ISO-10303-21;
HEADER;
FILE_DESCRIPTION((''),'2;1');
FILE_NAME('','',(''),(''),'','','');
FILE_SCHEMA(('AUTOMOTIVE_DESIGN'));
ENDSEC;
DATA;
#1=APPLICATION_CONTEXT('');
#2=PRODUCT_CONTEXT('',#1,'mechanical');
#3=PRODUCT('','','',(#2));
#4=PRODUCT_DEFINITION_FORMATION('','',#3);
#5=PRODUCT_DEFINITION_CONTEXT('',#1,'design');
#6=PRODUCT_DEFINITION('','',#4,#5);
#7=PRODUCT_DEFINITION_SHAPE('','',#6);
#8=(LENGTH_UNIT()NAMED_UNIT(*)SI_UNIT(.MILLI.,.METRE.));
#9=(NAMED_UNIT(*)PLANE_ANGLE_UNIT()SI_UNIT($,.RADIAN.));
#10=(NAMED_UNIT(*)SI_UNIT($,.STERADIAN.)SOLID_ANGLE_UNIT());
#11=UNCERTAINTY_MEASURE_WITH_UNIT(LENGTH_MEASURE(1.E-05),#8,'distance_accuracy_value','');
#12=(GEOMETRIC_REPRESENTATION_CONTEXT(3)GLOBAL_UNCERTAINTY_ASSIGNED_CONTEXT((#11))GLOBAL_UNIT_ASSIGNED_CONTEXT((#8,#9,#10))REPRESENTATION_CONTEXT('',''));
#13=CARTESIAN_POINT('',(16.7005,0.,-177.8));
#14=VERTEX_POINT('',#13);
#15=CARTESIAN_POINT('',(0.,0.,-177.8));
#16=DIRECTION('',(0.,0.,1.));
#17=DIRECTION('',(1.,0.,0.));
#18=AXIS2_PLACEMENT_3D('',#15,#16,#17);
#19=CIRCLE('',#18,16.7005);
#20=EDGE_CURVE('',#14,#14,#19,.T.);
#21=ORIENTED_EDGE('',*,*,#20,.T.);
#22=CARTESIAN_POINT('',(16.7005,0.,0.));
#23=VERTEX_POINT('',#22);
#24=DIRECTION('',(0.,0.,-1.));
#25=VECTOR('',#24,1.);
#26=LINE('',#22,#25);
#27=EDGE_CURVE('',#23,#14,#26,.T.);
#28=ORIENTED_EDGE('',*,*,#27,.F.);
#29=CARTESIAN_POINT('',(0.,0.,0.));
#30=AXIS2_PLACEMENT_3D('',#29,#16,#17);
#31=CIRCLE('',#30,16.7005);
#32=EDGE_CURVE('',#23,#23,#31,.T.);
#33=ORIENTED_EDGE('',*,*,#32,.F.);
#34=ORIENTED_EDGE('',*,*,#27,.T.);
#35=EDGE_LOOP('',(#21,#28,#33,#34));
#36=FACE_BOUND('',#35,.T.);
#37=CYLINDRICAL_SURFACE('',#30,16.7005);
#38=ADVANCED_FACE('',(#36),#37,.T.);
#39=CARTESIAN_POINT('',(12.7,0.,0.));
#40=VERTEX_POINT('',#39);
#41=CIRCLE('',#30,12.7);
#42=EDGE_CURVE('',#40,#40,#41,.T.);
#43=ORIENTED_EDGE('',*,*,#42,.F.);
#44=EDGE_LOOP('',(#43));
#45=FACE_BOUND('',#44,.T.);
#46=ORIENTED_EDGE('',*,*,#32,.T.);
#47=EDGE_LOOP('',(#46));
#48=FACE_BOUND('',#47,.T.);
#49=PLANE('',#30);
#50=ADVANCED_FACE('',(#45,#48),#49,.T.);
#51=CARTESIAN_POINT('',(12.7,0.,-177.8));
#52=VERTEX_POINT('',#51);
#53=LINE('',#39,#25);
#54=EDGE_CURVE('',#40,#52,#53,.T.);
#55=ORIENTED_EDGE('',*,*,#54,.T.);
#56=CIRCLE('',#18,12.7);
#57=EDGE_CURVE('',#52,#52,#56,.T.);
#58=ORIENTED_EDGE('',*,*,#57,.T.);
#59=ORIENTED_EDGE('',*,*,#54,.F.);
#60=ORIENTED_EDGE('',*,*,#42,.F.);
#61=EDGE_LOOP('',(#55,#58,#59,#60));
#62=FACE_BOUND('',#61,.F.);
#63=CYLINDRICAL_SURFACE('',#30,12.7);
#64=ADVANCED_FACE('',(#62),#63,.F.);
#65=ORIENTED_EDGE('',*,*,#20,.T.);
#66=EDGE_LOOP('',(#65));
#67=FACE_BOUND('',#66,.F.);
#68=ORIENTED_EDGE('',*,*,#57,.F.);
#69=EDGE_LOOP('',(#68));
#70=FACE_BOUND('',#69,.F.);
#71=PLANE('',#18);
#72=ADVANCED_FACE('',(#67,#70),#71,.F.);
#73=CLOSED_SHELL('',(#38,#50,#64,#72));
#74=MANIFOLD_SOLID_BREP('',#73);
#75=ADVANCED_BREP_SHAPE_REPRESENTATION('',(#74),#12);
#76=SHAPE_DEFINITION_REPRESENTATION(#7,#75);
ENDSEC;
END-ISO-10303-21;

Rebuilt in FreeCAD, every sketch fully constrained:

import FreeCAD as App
import Part
import Sketcher

V = App.Vector
Q = App.Units.Quantity

doc = App.newDocument("Part")
params = doc.addObject("Spreadsheet::Sheet", "Params")
for row, (alias, value) in enumerate([
    ("sketch1_diameter", "1 in"),
    ("sketch1_diameter2", "1.315 in"),
    ("pad1_length", "7 in"),
], start=1):
    params.set(f"A{row}", alias)
    params.set(f"B{row}", "=" + value)
    params.setAlias(f"B{row}", alias)

body = doc.addObject("PartDesign::Body", "Body")

# Sketch on XY plane
sketch1 = doc.addObject("Sketcher::SketchObject", "Sketch")
body.addObject(sketch1)
sketch1.AttachmentSupport = (doc.XY_Plane, [""])
sketch1.MapMode = "FlatFace"
sketch1.addGeometry([
    Part.Circle(V(0, 0, 0), V(0, 0, 1), 16.7005),
    Part.Circle(V(0, 0, 0), V(0, 0, 1), 12.7),
], False)
sketch1.addConstraint([
    Sketcher.Constraint("Coincident", 0, 3, -1, 1),
    Sketcher.Constraint("Coincident", 1, 3, -1, 1),
    Sketcher.Constraint("Diameter", 1, Q("1 in")),
    Sketcher.Constraint("Diameter", 0, Q("1.315 in")),
])
sketch1.setExpression("Constraints[2]", "Params.sketch1_diameter")
sketch1.setExpression("Constraints[3]", "Params.sketch1_diameter2")
pad1 = doc.addObject("PartDesign::Pad", "Pad")
body.addObject(pad1)
pad1.Profile = sketch1
pad1.setExpression("Length", "Params.pad1_length")
pad1.Reversed = True

doc.recompute()
